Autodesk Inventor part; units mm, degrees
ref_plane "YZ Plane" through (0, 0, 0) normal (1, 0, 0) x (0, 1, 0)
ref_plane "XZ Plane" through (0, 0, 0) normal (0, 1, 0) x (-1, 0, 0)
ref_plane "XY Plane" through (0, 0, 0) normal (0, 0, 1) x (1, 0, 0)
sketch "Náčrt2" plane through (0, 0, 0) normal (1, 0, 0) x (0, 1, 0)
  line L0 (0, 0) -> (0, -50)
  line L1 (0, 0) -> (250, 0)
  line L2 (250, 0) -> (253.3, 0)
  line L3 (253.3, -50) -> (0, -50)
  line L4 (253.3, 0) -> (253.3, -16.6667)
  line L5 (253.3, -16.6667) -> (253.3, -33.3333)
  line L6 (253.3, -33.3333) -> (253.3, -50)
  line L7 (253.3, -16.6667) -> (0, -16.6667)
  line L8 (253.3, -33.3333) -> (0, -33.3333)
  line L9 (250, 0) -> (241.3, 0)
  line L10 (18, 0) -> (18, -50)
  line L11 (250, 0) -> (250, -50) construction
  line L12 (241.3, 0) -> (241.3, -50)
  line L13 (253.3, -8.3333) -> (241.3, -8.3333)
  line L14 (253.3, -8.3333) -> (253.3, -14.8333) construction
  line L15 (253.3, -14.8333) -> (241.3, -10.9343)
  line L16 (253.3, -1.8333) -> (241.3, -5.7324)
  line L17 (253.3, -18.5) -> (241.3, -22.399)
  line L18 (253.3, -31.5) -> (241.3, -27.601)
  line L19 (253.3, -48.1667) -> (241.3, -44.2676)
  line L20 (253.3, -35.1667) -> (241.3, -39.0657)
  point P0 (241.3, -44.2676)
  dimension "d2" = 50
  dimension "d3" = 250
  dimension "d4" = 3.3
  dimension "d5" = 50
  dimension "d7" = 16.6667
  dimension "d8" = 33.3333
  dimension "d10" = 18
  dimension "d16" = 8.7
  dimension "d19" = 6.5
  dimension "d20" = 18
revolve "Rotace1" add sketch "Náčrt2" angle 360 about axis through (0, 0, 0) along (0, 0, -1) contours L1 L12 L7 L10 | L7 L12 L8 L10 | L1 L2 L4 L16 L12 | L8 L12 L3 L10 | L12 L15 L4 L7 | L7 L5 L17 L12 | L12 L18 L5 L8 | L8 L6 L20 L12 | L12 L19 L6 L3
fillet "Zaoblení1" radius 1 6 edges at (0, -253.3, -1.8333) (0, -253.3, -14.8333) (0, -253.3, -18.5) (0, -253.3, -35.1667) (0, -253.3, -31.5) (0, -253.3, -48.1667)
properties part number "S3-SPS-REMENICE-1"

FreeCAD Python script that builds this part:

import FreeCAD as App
import Part
import Sketcher

V = App.Vector
Q = App.Units.Quantity


def edges_at(feature, points):
    """Names of the edges that pass closest to the given points."""
    edges = feature.Shape.Edges
    near = lambda p: min(range(len(edges)), key=lambda i: edges[i].distToShape(Part.Vertex(*p))[0])
    return sorted({f"Edge{near(p) + 1}" for p in points})


def add_polygon(sketch, points):
    """Adds a closed chain of lines whose ends are joined by coincident constraints."""
    first, n = sketch.GeometryCount, len(points)
    for a, b in zip(points, points[1:] + points[:1]):
        sketch.addGeometry(Part.LineSegment(App.Vector(*a, 0), App.Vector(*b, 0)), False)
    for i in range(n):
        sketch.addConstraint(Sketcher.Constraint("Coincident", first + i, 2, first + (i + 1) % n, 1))

doc = App.newDocument("Part")
body = doc.addObject("PartDesign::Body", "Body")

# Sketch on YZ plane
sketch1 = body.newObject("Sketcher::SketchObject", "Sketch")
sketch1.AttachmentSupport = (doc.getObject("YZ_Plane"), [""])
sketch1.MapMode = "FlatFace"
add_polygon(sketch1, [(18, 0), (18, -50), (253.3, -50), (253.3, -48.1667), (241.3, -44.2676), (241.3, -39.0657), (253.3, -35.1667), (253.3, -31.5), (241.3, -27.601), (241.3, -22.399), (253.3, -18.5), (253.3, -14.8333), (241.3, -10.9343), (241.3, -5.7324), (253.3, -1.8333), (253.3, 0)])  # lines 0-15
sketch1.addConstraint(Sketcher.Constraint("Vertical", 0))
sketch1.addConstraint(Sketcher.Constraint("Horizontal", 1))
sketch1.addConstraint(Sketcher.Constraint("Vertical", 2))
sketch1.addConstraint(Sketcher.Constraint("Vertical", 4))
sketch1.addConstraint(Sketcher.Constraint("Vertical", 6))
sketch1.addConstraint(Sketcher.Constraint("Vertical", 8))
sketch1.addConstraint(Sketcher.Constraint("Vertical", 10))
sketch1.addConstraint(Sketcher.Constraint("Vertical", 12))
sketch1.addConstraint(Sketcher.Constraint("Vertical", 14))
sketch1.addConstraint(Sketcher.Constraint("Horizontal", 15))
sketch1.addConstraint(Sketcher.Constraint("PointOnObject", 14, 2, -1))
sketch1.addConstraint(Sketcher.Constraint("Parallel", 3, 7))
sketch1.addConstraint(Sketcher.Constraint("Parallel", 5, 9))
sketch1.addConstraint(Sketcher.Constraint("Parallel", 7, 11))
sketch1.addConstraint(Sketcher.Constraint("Parallel", 9, 13))
sketch1.addConstraint(Sketcher.Constraint("Vertical", 2, 2, 5, 2))
sketch1.addConstraint(Sketcher.Constraint("Vertical", 4, 2, 7, 2))
sketch1.addConstraint(Sketcher.Constraint("Vertical", 6, 2, 9, 2))
sketch1.addConstraint(Sketcher.Constraint("Vertical", 8, 2, 11, 2))
sketch1.addConstraint(Sketcher.Constraint("Vertical", 10, 2, 13, 2))
sketch1.addConstraint(Sketcher.Constraint("Equal", 4, 8))
sketch1.addConstraint(Sketcher.Constraint("Equal", 6, 10))
sketch1.addConstraint(Sketcher.Constraint("Equal", 8, 12))
sketch1.addConstraint(Sketcher.Constraint("Equal", 2, 14))
sketch1.addConstraint(Sketcher.Constraint("Equal", 3, 5))
sketch1.addConstraint(Sketcher.Constraint("DistanceY", 0, 2, 0, 1, Q("50 mm")))
sketch1.addConstraint(Sketcher.Constraint("Angle", 5, Q("17.9998 deg")))
sketch1.addConstraint(Sketcher.Constraint("DistanceX", -1, 1, 0, 2, Q("18 mm")))
sketch1.addConstraint(Sketcher.Constraint("DistanceX", 1, 1, 1, 2, Q("235.3 mm")))
sketch1.addConstraint(Sketcher.Constraint("DistanceX", 3, 2, 2, 2, Q("12 mm")))
sketch1.addConstraint(Sketcher.Constraint("DistanceY", 2, 2, 5, 2, Q("13 mm")))
sketch1.addConstraint(Sketcher.Constraint("DistanceY", 2, 2, 6, 2, Q("16.6667 mm")))
revolution = body.newObject("PartDesign::Revolution", "Revolution")
revolution.Profile = sketch1
revolution.ReferenceAxis = (sketch1, ["V_Axis"])
revolution.Angle = 360
doc.recompute()

fillet = body.newObject("PartDesign::Fillet", "Fillet")
fillet.Base = (revolution, edges_at(revolution, [
    (0, -253.3, -1.833),
    (0, -253.3, -14.833),
    (0, -253.3, -18.5),
    (0, -253.3, -35.167),
    (0, -253.3, -31.5),
    (0, -253.3, -48.167),
]))
fillet.Radius = 1

doc.recompute()
